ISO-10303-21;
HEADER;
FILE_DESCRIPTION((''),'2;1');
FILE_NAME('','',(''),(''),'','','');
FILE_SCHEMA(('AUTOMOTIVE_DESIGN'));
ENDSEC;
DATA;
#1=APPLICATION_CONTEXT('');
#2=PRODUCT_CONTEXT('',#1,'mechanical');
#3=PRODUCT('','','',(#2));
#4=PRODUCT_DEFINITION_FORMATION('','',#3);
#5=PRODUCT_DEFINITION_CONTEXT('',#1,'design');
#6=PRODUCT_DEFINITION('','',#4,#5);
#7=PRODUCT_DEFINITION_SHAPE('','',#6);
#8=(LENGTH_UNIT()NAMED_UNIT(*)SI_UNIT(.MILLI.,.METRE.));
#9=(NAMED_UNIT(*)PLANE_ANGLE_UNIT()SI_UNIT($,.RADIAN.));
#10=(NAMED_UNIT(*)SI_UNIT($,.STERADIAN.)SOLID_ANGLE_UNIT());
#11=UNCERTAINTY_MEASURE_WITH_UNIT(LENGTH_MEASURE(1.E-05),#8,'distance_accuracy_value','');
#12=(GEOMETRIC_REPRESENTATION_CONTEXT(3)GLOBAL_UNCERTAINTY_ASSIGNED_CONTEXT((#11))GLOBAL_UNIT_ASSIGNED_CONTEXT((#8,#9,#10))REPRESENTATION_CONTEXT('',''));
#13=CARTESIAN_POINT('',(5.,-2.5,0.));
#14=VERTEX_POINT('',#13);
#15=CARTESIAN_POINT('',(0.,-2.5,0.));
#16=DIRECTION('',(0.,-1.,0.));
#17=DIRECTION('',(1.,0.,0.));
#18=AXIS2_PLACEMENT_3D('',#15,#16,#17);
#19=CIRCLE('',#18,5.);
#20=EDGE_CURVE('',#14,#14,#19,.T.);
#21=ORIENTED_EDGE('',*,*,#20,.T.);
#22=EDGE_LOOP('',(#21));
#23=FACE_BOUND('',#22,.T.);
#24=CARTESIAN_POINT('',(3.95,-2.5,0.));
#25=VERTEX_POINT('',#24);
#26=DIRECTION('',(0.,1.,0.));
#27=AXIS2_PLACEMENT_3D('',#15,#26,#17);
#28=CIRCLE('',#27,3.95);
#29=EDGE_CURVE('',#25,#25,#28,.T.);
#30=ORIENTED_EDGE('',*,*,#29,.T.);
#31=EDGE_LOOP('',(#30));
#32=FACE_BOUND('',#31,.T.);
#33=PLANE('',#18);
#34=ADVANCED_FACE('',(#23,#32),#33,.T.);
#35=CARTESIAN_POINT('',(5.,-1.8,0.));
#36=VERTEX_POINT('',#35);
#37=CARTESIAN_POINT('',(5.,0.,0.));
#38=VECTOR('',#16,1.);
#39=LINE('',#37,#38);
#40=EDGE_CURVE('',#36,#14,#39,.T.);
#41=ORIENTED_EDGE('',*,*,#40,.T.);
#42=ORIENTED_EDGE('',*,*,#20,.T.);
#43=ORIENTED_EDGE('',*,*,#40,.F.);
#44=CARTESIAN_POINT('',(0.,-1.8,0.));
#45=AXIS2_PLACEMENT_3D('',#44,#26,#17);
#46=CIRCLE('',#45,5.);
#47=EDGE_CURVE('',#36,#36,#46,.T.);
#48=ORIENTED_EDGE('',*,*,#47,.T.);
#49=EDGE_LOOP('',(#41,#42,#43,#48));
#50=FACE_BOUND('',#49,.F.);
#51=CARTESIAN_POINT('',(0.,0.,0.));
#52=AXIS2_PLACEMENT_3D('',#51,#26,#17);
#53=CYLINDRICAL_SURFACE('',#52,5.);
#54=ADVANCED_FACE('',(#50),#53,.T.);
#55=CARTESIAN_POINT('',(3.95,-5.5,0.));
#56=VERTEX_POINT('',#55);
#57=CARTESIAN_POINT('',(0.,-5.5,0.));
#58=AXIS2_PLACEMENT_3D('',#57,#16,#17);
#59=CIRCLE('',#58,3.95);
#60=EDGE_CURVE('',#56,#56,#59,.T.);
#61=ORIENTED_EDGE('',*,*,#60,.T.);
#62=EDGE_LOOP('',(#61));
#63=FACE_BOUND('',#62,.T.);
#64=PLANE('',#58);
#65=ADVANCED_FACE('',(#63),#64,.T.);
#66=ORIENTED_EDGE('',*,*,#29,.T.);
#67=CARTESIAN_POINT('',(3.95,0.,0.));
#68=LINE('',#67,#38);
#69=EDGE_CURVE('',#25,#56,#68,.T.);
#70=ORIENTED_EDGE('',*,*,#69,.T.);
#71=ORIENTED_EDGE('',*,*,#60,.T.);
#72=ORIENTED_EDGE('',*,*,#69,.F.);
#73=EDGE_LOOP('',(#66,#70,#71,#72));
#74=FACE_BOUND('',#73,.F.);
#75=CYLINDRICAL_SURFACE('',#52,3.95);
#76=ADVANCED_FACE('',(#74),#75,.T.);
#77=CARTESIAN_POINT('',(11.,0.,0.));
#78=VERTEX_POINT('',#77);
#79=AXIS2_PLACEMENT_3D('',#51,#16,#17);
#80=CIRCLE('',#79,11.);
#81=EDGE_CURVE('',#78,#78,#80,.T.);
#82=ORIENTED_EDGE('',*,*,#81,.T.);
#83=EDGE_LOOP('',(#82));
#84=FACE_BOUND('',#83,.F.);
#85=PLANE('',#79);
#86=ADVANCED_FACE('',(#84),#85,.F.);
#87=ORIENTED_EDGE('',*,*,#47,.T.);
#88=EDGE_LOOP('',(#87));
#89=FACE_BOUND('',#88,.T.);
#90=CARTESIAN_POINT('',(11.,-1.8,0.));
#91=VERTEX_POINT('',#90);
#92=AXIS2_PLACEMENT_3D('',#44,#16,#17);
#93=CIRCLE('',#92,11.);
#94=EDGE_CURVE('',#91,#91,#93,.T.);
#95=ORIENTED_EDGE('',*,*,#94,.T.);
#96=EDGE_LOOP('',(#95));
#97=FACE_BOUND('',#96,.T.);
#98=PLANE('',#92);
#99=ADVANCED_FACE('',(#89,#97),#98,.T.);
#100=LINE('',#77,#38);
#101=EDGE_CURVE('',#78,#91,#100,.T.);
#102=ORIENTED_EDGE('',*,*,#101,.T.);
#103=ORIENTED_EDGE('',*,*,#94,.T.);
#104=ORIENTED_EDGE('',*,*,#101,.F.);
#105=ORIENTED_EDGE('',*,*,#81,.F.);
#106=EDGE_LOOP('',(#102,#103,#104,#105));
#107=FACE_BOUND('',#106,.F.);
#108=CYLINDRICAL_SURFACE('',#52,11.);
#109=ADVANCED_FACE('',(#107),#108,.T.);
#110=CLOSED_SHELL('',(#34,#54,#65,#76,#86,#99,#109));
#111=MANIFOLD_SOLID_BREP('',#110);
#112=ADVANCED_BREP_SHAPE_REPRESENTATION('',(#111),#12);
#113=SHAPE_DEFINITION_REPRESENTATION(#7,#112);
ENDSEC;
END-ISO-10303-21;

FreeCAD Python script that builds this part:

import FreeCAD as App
import Part
import Sketcher
Q = App.Units.Quantity

doc = App.newDocument("Part")
body = doc.addObject("PartDesign::Body", "Body")

# Sketch on XZ plane
sketch1 = body.newObject("Sketcher::SketchObject", "Sketch")
sketch1.AttachmentSupport = (doc.getObject("XZ_Plane"), [""])
sketch1.MapMode = "FlatFace"
sketch1.addGeometry(Part.Circle(App.Vector(0, 0, 0), App.Vector(0, 0, 1), 11), False)
sketch1.addConstraint(Sketcher.Constraint("Coincident", 0, 3, -1, 1))
sketch1.addConstraint(Sketcher.Constraint("Diameter", 0, Q("22 mm")))
pad1 = body.newObject("PartDesign::Pad", "Pad")
pad1.Profile = sketch1
pad1.Length = 1.8

# Sketch on XZ plane
sketch2 = body.newObject("Sketcher::SketchObject", "Sketch001")
sketch2.AttachmentSupport = (doc.getObject("XZ_Plane"), [""])
sketch2.MapMode = "FlatFace"
sketch2.addGeometry(Part.Circle(App.Vector(0, 0, 0), App.Vector(0, 0, 1), 4), False)
sketch2.addConstraint(Sketcher.Constraint("Coincident", 0, 3, -1, 1))
sketch2.addConstraint(Sketcher.Constraint("Diameter", 0, Q("7.9 mm")))
pad2 = body.newObject("PartDesign::Pad", "Pad001")
pad2.Profile = sketch2
pad2.Length = 5.5

# Sketch on XZ plane
sketch3 = body.newObject("Sketcher::SketchObject", "Sketch002")
sketch3.AttachmentSupport = (doc.getObject("XZ_Plane"), [""])
sketch3.MapMode = "FlatFace"
sketch3.addGeometry(Part.Circle(App.Vector(0, 0, 0), App.Vector(0, 0, 1), 5), False)
sketch3.addConstraint(Sketcher.Constraint("Coincident", 0, 3, -1, 1))
sketch3.addConstraint(Sketcher.Constraint("Diameter", 0, Q("10 mm")))
pad3 = body.newObject("PartDesign::Pad", "Pad002")
pad3.Profile = sketch3
pad3.Length = 2.5

doc.recompute()
